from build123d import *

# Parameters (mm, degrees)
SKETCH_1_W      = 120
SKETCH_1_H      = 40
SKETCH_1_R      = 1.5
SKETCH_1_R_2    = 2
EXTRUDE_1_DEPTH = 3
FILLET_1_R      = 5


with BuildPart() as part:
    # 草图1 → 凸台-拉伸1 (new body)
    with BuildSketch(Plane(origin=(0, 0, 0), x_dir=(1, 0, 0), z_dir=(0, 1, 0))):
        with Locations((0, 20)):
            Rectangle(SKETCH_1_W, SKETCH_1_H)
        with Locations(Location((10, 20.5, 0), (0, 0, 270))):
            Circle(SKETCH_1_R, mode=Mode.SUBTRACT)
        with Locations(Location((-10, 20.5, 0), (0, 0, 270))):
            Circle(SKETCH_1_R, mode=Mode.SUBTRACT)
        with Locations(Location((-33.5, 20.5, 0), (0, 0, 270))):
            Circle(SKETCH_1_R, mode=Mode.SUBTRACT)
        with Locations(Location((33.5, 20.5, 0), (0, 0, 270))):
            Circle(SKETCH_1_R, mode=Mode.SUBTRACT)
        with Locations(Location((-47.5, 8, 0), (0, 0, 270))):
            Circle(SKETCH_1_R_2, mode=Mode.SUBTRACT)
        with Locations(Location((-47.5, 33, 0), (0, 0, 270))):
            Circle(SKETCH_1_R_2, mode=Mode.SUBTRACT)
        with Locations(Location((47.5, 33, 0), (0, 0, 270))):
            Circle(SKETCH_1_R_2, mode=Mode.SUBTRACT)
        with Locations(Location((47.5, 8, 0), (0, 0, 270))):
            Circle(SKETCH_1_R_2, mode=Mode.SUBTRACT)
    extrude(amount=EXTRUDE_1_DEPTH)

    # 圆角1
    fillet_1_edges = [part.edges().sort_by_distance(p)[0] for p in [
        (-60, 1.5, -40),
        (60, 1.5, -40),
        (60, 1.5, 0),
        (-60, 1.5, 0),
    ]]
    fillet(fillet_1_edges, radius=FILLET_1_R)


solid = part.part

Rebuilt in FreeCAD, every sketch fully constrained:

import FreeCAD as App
import Part
import Sketcher

V = App.Vector
Q = App.Units.Quantity


def edges_at(feature, points):
    """Names of the edges that pass closest to the given points."""
    edges = feature.Shape.Edges
    near = lambda p: min(range(len(edges)), key=lambda i: edges[i].distToShape(Part.Vertex(*p))[0])
    return sorted({f"Edge{near(p) + 1}" for p in points})


def add_polygon(sketch, points):
    """Adds a closed chain of lines whose ends are joined by coincident constraints."""
    first, n = sketch.GeometryCount, len(points)
    for a, b in zip(points, points[1:] + points[:1]):
        sketch.addGeometry(Part.LineSegment(App.Vector(*a, 0), App.Vector(*b, 0)), False)
    for i in range(n):
        sketch.addConstraint(Sketcher.Constraint("Coincident", first + i, 2, first + (i + 1) % n, 1))

doc = App.newDocument("Part")
body = doc.addObject("PartDesign::Body", "Body")

# Sketch on XZ plane
sketch1 = body.newObject("Sketcher::SketchObject", "Sketch")
sketch1.AttachmentSupport = (doc.getObject("XZ_Plane"), [""])
sketch1.MapMode = "FlatFace"
add_polygon(sketch1, [(-60, -40), (-60, 0), (60, 0), (60, -40)])  # lines 0-3
sketch1.addGeometry(Part.Circle(V(-47.5, -8, 0), V(0, 0, 1), 2), False)  # 4
sketch1.addGeometry(Part.Circle(V(47.5, -8, 0), V(0, 0, 1), 2), False)  # 5
sketch1.addGeometry(Part.Circle(V(-33.5, -20.5, 0), V(0, 0, 1), 1.5), False)  # 6
sketch1.addGeometry(Part.Circle(V(-10, -20.5, 0), V(0, 0, 1), 1.5), False)  # 7
sketch1.addGeometry(Part.Circle(V(-47.5, -33, 0), V(0, 0, 1), 2), False)  # 8
sketch1.addGeometry(Part.Circle(V(10, -20.5, 0), V(0, 0, 1), 1.5), False)  # 9
sketch1.addGeometry(Part.Circle(V(33.5, -20.5, 0), V(0, 0, 1), 1.5), False)  # 10
sketch1.addGeometry(Part.Circle(V(47.5, -33, 0), V(0, 0, 1), 2), False)  # 11
sketch1.addConstraint([
    Sketcher.Constraint("Vertical", 0),
    Sketcher.Constraint("Horizontal", 1),
    Sketcher.Constraint("Vertical", 2),
    Sketcher.Constraint("Horizontal", 3),
    Sketcher.Constraint("Equal", 4, 5),
    Sketcher.Constraint("Equal", 6, 7),
    Sketcher.Constraint("Equal", 5, 8),
    Sketcher.Constraint("Equal", 7, 9),
    Sketcher.Constraint("Equal", 9, 10),
    Sketcher.Constraint("Equal", 8, 11),
    Sketcher.Constraint("Symmetric", 0, 2, 1, 2, -1, 1),
    Sketcher.Constraint("Symmetric", 4, 3, 5, 3, -2),
    Sketcher.Constraint("Symmetric", 7, 3, 9, 3, -2),
    Sketcher.Constraint("Symmetric", 6, 3, 10, 3, -2),
    Sketcher.Constraint("Symmetric", 8, 3, 11, 3, -2),
    Sketcher.Constraint("Horizontal", 6, 3, 7, 3),
    Sketcher.Constraint("Vertical", 4, 3, 8, 3),
    Sketcher.Constraint("Diameter", 4, Q("4 mm")),
    Sketcher.Constraint("Diameter", 6, Q("3 mm")),
    Sketcher.Constraint("DistanceX", 1, 1, 1, 2, Q("120 mm")),
    Sketcher.Constraint("DistanceY", 0, 1, 0, 2, Q("40 mm")),
    Sketcher.Constraint("DistanceY", 4, 3, -1, 1, Q("8 mm")),
    Sketcher.Constraint("DistanceX", 7, 3, -1, 1, Q("10 mm")),
    Sketcher.Constraint("DistanceY", 8, 3, -1, 1, Q("33 mm")),
    Sketcher.Constraint("DistanceX", 4, 3, 5, 3, Q("95 mm")),
    Sketcher.Constraint("DistanceX", 4, 3, 6, 3, Q("14 mm")),
    Sketcher.Constraint("DistanceY", 6, 3, -1, 1, Q("20.5 mm")),
])
pad1 = body.newObject("PartDesign::Pad", "Pad")
pad1.Profile = sketch1
pad1.Length = 3
pad1.Reversed = True
doc.recompute()

fillet = body.newObject("PartDesign::Fillet", "Fillet")
fillet.Base = (pad1, edges_at(pad1, [
    (-60, 1.5, -40),
    (60, 1.5, -40),
    (60, 1.5, 0),
    (-60, 1.5, 0),
]))
fillet.Radius = 5

doc.recompute()
